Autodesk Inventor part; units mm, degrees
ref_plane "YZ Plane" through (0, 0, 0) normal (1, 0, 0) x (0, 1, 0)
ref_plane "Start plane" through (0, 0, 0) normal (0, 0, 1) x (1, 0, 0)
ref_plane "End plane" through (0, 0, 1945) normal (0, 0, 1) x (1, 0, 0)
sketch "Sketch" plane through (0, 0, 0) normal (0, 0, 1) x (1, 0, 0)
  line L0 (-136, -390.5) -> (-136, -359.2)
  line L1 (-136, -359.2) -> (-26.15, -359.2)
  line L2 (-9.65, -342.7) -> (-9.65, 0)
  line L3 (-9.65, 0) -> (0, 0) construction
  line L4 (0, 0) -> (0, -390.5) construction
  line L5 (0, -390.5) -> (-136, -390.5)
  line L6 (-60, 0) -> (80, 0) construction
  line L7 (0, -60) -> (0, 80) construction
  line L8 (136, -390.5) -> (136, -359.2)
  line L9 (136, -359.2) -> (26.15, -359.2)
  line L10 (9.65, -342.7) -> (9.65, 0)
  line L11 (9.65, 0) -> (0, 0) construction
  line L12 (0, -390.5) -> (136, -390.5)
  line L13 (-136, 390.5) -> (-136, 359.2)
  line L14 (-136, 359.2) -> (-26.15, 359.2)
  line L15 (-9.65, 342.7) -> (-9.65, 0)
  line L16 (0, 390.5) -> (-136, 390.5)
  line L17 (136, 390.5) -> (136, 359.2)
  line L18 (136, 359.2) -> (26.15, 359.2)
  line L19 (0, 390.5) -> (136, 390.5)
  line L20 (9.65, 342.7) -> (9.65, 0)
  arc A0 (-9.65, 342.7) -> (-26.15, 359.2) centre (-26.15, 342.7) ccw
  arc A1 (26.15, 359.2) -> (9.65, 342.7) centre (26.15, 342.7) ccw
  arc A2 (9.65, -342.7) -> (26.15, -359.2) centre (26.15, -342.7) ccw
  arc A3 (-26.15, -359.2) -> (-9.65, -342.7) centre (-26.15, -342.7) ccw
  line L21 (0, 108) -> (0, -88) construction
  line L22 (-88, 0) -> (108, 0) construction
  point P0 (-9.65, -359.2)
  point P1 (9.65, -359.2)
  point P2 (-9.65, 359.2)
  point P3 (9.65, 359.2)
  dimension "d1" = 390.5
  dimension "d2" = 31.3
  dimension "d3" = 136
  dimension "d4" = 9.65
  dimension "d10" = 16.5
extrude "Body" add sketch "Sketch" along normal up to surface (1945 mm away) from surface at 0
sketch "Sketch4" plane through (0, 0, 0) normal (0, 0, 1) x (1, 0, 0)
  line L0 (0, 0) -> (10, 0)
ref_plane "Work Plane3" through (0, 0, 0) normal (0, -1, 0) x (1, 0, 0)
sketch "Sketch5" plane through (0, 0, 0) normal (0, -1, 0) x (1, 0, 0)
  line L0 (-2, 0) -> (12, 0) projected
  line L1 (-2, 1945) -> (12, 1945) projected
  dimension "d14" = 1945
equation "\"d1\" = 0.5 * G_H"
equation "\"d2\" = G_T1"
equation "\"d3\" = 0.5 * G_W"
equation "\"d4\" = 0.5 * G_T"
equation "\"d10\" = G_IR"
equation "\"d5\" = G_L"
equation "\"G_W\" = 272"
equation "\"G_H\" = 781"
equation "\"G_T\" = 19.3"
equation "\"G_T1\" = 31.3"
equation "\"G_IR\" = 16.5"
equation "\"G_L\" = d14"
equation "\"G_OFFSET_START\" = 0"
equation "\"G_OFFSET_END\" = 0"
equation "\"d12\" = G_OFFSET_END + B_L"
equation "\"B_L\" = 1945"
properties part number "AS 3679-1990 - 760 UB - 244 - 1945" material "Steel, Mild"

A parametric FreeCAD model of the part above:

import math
import FreeCAD as App
import Part
import Sketcher

V = App.Vector

doc = App.newDocument("Part")
params = doc.addObject("Spreadsheet::Sheet", "Params")
for row, (alias, value) in enumerate([
    ("sketch1_radius", "16.5 mm"),
    ("sketch1_height", "31.3 mm"),
    ("pad1_length", "1945 mm"),
], start=1):
    params.set(f"A{row}", alias)
    params.set(f"B{row}", "=" + value)
    params.setAlias(f"B{row}", alias)

body = doc.addObject("PartDesign::Body", "Body")

# Sketch on XY plane
sketch1 = body.newObject("Sketcher::SketchObject", "Sketch")
sketch1.AttachmentSupport = (doc.getObject("XY_Plane"), [""])
sketch1.MapMode = "FlatFace"
sketch1.addGeometry([
    Part.LineSegment(V(-136, -359.2, 0), V(-136, -390.5, 0)),  # 0
    Part.LineSegment(V(-136, -390.5, 0), V(136, -390.5, 0)),  # 1
    Part.LineSegment(V(136, -390.5, 0), V(136, -359.2, 0)),  # 2
    Part.LineSegment(V(136, -359.2, 0), V(26.15, -359.2, 0)),  # 3
    Part.ArcOfCircle(Part.Circle(V(26.15, -342.7, 0), V(0, 0, 1), 16.5), math.radians(180), math.radians(270)),  # 4
    Part.LineSegment(V(9.65, -342.7, 0), V(9.65, 342.7, 0)),  # 5
    Part.ArcOfCircle(Part.Circle(V(26.15, 342.7, 0), V(0, 0, 1), 16.5), math.radians(90), math.radians(180)),  # 6
    Part.LineSegment(V(26.15, 359.2, 0), V(136, 359.2, 0)),  # 7
    Part.LineSegment(V(136, 359.2, 0), V(136, 390.5, 0)),  # 8
    Part.LineSegment(V(136, 390.5, 0), V(-136, 390.5, 0)),  # 9
    Part.LineSegment(V(-136, 390.5, 0), V(-136, 359.2, 0)),  # 10
    Part.LineSegment(V(-136, 359.2, 0), V(-26.15, 359.2, 0)),  # 11
    Part.ArcOfCircle(Part.Circle(V(-26.15, 342.7, 0), V(0, 0, 1), 16.5), math.radians(0), math.radians(90)),  # 12
    Part.LineSegment(V(-9.65, 342.7, 0), V(-9.65, -342.7, 0)),  # 13
    Part.ArcOfCircle(Part.Circle(V(-26.15, -342.7, 0), V(0, 0, 1), 16.5), math.radians(-90), math.radians(0)),  # 14
    Part.LineSegment(V(-26.15, -359.2, 0), V(-136, -359.2, 0)),  # 15
], False)
sketch1.addConstraint([
    Sketcher.Constraint("Coincident", 0, 2, 1, 1),
    Sketcher.Constraint("Coincident", 1, 2, 2, 1),
    Sketcher.Constraint("Coincident", 2, 2, 3, 1),
    Sketcher.Constraint("Tangent", 3, 2, 4, 2),
    Sketcher.Constraint("Tangent", 4, 1, 5, 1),
    Sketcher.Constraint("Tangent", 5, 2, 6, 2),
    Sketcher.Constraint("Tangent", 6, 1, 7, 1),
    Sketcher.Constraint("Coincident", 7, 2, 8, 1),
    Sketcher.Constraint("Coincident", 8, 2, 9, 1),
    Sketcher.Constraint("Coincident", 9, 2, 10, 1),
    Sketcher.Constraint("Coincident", 10, 2, 11, 1),
    Sketcher.Constraint("Tangent", 11, 2, 12, 2),
    Sketcher.Constraint("Tangent", 12, 1, 13, 1),
    Sketcher.Constraint("Tangent", 13, 2, 14, 2),
    Sketcher.Constraint("Tangent", 14, 1, 15, 1),
    Sketcher.Constraint("Coincident", 15, 2, 0, 1),
    Sketcher.Constraint("Vertical", 0),
    Sketcher.Constraint("Horizontal", 1),
    Sketcher.Constraint("Vertical", 2),
    Sketcher.Constraint("Horizontal", 3),
    Sketcher.Constraint("Vertical", 5),
    Sketcher.Constraint("Horizontal", 7),
    Sketcher.Constraint("Vertical", 8),
    Sketcher.Constraint("Horizontal", 9),
    Sketcher.Constraint("Vertical", 10),
    Sketcher.Constraint("Horizontal", 11),
    Sketcher.Constraint("Vertical", 13),
    Sketcher.Constraint("Horizontal", 15),
    Sketcher.Constraint("Equal", 4, 6),
    Sketcher.Constraint("Equal", 6, 12),
    Sketcher.Constraint("Equal", 12, 14),
    Sketcher.Constraint("Symmetric", 4, 3, 12, 3, -1, 1),
    Sketcher.Constraint("Symmetric", 0, 2, 8, 2, -1, 1),
    Sketcher.Constraint("Symmetric", 7, 2, 10, 2, -2),
    Sketcher.Constraint("Symmetric", 2, 2, 15, 2, -2),
    Sketcher.Constraint("Radius", 4, 16.5),
    Sketcher.Constraint("DistanceY", 0, 2, 0, 1, 31.3),
    Sketcher.Constraint("DistanceX", 0, 2, -1, 1, 136.0),
    Sketcher.Constraint("DistanceY", 0, 2, -1, 1, 390.5),
    Sketcher.Constraint("DistanceX", -1, 1, 4, 1, 9.65),
])
sketch1.setExpression("Constraints[35]", "Params.sketch1_radius")
sketch1.setExpression("Constraints[36]", "Params.sketch1_height")
pad1 = body.newObject("PartDesign::Pad", "Pad")
pad1.Profile = sketch1
pad1.setExpression("Length", "Params.pad1_length")

doc.recompute()
